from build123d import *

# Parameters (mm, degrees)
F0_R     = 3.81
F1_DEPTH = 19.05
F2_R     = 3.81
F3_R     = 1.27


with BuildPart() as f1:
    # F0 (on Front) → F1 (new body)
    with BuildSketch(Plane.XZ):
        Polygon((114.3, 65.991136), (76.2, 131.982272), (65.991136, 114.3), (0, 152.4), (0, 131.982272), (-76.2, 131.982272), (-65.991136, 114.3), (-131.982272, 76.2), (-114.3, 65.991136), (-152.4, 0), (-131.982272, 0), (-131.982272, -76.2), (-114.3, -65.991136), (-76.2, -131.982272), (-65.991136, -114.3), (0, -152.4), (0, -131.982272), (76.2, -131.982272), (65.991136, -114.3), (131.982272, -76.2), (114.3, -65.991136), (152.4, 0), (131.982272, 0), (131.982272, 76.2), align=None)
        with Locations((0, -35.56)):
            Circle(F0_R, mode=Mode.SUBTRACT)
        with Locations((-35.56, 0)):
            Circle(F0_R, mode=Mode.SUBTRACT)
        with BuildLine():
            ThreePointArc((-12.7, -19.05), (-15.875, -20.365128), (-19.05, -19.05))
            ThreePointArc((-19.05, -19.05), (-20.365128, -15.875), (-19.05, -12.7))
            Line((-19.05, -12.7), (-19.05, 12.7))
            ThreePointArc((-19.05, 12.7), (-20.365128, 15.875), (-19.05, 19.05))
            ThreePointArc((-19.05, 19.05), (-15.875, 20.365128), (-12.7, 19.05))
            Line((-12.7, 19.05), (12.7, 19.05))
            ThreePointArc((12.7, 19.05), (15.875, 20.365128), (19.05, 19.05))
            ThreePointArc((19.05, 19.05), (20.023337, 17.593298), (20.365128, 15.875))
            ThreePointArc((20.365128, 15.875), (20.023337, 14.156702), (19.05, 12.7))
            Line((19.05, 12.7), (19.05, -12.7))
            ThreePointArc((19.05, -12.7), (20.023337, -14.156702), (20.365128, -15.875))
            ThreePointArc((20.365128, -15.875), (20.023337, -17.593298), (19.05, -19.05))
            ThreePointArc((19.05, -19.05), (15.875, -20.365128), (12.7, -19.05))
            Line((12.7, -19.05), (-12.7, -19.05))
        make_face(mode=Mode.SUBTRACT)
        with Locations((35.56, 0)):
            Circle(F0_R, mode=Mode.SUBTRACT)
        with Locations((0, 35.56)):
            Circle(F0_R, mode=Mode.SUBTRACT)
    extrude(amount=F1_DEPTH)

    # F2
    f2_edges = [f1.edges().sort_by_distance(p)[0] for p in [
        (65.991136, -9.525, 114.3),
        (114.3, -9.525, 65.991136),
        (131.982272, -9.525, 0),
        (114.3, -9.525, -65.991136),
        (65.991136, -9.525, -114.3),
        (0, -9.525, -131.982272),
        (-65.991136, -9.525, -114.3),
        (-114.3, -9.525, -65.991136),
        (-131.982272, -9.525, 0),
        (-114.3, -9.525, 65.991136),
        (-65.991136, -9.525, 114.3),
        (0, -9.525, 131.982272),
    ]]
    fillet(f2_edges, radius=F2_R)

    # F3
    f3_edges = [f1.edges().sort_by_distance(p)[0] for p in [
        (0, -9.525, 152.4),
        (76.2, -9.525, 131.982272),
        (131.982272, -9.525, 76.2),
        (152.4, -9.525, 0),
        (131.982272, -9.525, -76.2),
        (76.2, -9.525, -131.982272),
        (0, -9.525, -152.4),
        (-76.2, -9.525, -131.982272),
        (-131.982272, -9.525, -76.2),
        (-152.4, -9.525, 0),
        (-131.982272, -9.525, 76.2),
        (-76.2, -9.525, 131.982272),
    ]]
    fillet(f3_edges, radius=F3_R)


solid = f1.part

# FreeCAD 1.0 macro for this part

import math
import FreeCAD as App
import Part
import Sketcher
from FreeCAD import Vector
Q = App.Units.Quantity


def edges_at(feature, points):
    """Names of the edges that pass closest to the given points."""
    edges = feature.Shape.Edges
    near = lambda p: min(range(len(edges)), key=lambda i: edges[i].distToShape(Part.Vertex(*p))[0])
    return sorted({f"Edge{near(p) + 1}" for p in points})


def add_polygon(sketch, points):
    """Adds a closed chain of lines whose ends are joined by coincident constraints."""
    first, n = sketch.GeometryCount, len(points)
    for a, b in zip(points, points[1:] + points[:1]):
        sketch.addGeometry(Part.LineSegment(App.Vector(*a, 0), App.Vector(*b, 0)), False)
    for i in range(n):
        sketch.addConstraint(Sketcher.Constraint("Coincident", first + i, 2, first + (i + 1) % n, 1))

doc = App.newDocument("Part")
body = doc.addObject("PartDesign::Body", "Body")

# Sketch on XZ plane
sketch1 = doc.addObject("Sketcher::SketchObject", "Sketch")
body.addObject(sketch1)
sketch1.AttachmentSupport = (doc.XZ_Plane, [""])
sketch1.MapMode = "FlatFace"
add_polygon(sketch1, [(114.3, 65.991136), (76.2, 131.982272), (65.991136, 114.3), (0, 152.4), (0, 131.982272), (-76.2, 131.982272), (-65.991136, 114.3), (-131.982272, 76.2), (-114.3, 65.991136), (-152.4, 0), (-131.982272, 0), (-131.982272, -76.2), (-114.3, -65.991136), (-76.2, -131.982272), (-65.991136, -114.3), (0, -152.4), (0, -131.982272), (76.2, -131.982272), (65.991136, -114.3), (131.982272, -76.2), (114.3, -65.991136), (152.4, 0), (131.982272, 0), (131.982272, 76.2)])  # lines 0-23
sketch1.addGeometry(Part.Circle(Vector(0, -35.56, 0), Vector(0, 0, 1), 3.81), False)  # 24
sketch1.addGeometry(Part.Circle(Vector(-35.56, 0, 0), Vector(0, 0, 1), 3.81), False)  # 25
sketch1.addGeometry(Part.LineSegment(Vector(12.7, -19.05, 0), Vector(-12.7, -19.05, 0)), False)  # 26
sketch1.addGeometry(Part.ArcOfCircle(Part.Circle(Vector(-15.875, -15.875, 0), Vector(0, 0, 1), 4.490128), math.radians(-134.999998), math.radians(-45.000002)), False)  # 27
sketch1.addGeometry(Part.ArcOfCircle(Part.Circle(Vector(-15.875, -15.875, 0), Vector(0, 0, 1), 4.490128), math.radians(135.000002), math.radians(224.999998)), False)  # 28
sketch1.addGeometry(Part.LineSegment(Vector(-19.05, -12.7, 0), Vector(-19.05, 12.7, 0)), False)  # 29
sketch1.addGeometry(Part.ArcOfCircle(Part.Circle(Vector(-15.875, 15.875, 0), Vector(0, 0, 1), 4.490128), math.radians(135.000002), math.radians(224.999998)), False)  # 30
sketch1.addGeometry(Part.ArcOfCircle(Part.Circle(Vector(-15.875, 15.875, 0), Vector(0, 0, 1), 4.490128), math.radians(45.000002), math.radians(134.999998)), False)  # 31
sketch1.addGeometry(Part.LineSegment(Vector(-12.7, 19.05, 0), Vector(12.7, 19.05, 0)), False)  # 32
sketch1.addGeometry(Part.ArcOfCircle(Part.Circle(Vector(15.875, 15.875, 0), Vector(0, 0, 1), 4.490128), math.radians(45.000002), math.radians(134.999998)), False)  # 33
sketch1.addGeometry(Part.ArcOfCircle(Part.Circle(Vector(15.874997, 15.874999, 0), Vector(0, 0, 1), 4.490131), math.radians(0.000012), math.radians(44.999986)), False)  # 34
sketch1.addGeometry(Part.ArcOfCircle(Part.Circle(Vector(15.874997, 15.875001, 0), Vector(0, 0, 1), 4.490131), math.radians(-44.999986), math.radians(-0.000012)), False)  # 35
sketch1.addGeometry(Part.LineSegment(Vector(19.05, 12.7, 0), Vector(19.05, -12.7, 0)), False)  # 36
sketch1.addGeometry(Part.ArcOfCircle(Part.Circle(Vector(15.874997, -15.875001, 0), Vector(0, 0, 1), 4.490131), math.radians(0.000012), math.radians(44.999986)), False)  # 37
sketch1.addGeometry(Part.ArcOfCircle(Part.Circle(Vector(15.874997, -15.874999, 0), Vector(0, 0, 1), 4.490131), math.radians(-44.999986), math.radians(-0.000012)), False)  # 38
sketch1.addGeometry(Part.ArcOfCircle(Part.Circle(Vector(15.875, -15.875, 0), Vector(0, 0, 1), 4.490128), math.radians(-134.999998), math.radians(-45.000002)), False)  # 39
sketch1.addGeometry(Part.Circle(Vector(35.56, 0, 0), Vector(0, 0, 1), 3.81), False)  # 40
sketch1.addGeometry(Part.Circle(Vector(0, 35.56, 0), Vector(0, 0, 1), 3.81), False)  # 41
sketch1.addConstraint([
    Sketcher.Constraint("Coincident", 26, 2, 27, 2),
    Sketcher.Constraint("Tangent", 27, 1, 28, 2),
    Sketcher.Constraint("Coincident", 28, 1, 29, 1),
    Sketcher.Constraint("Coincident", 29, 2, 30, 2),
    Sketcher.Constraint("Tangent", 30, 1, 31, 2),
    Sketcher.Constraint("Coincident", 31, 1, 32, 1),
    Sketcher.Constraint("Coincident", 32, 2, 33, 2),
    Sketcher.Constraint("Tangent", 33, 1, 34, 2),
    Sketcher.Constraint("Tangent", 34, 1, 35, 2),
    Sketcher.Constraint("Coincident", 35, 1, 36, 1),
    Sketcher.Constraint("Coincident", 36, 2, 37, 2),
    Sketcher.Constraint("Tangent", 37, 1, 38, 2),
    Sketcher.Constraint("Tangent", 38, 1, 39, 2),
    Sketcher.Constraint("Coincident", 39, 1, 26, 1),
    Sketcher.Constraint("Vertical", 3),
    Sketcher.Constraint("Horizontal", 4),
    Sketcher.Constraint("Horizontal", 9),
    Sketcher.Constraint("Vertical", 10),
    Sketcher.Constraint("Vertical", 15),
    Sketcher.Constraint("Horizontal", 16),
    Sketcher.Constraint("Horizontal", 21),
    Sketcher.Constraint("Vertical", 22),
    Sketcher.Constraint("Horizontal", 26),
    Sketcher.Constraint("Vertical", 29),
    Sketcher.Constraint("Horizontal", 32),
    Sketcher.Constraint("Vertical", 36),
    Sketcher.Constraint("Coincident", 35, 3, 33, 3),
    Sketcher.Constraint("Coincident", 39, 3, 37, 3),
    Sketcher.Constraint("Equal", 24, 25),
    Sketcher.Constraint("Equal", 27, 28),
    Sketcher.Constraint("Equal", 28, 30),
    Sketcher.Constraint("Equal", 30, 31),
    Sketcher.Constraint("Equal", 31, 33),
    Sketcher.Constraint("Equal", 35, 37),
    Sketcher.Constraint("Equal", 25, 40),
    Sketcher.Constraint("Equal", 40, 41),
    Sketcher.Constraint("Symmetric", 27, 3, 33, 3, -1, 1),
    Sketcher.Constraint("Symmetric", 30, 3, 37, 3, -1, 1),
    Sketcher.Constraint("Symmetric", 25, 3, 40, 3, -1, 1),
    Sketcher.Constraint("Symmetric", 24, 3, 41, 3, -1, 1),
    Sketcher.Constraint("Symmetric", 0, 2, 12, 2, -1, 1),
    Sketcher.Constraint("Symmetric", 1, 2, 13, 2, -1, 1),
    Sketcher.Constraint("Symmetric", 2, 2, 14, 2, -1, 1),
    Sketcher.Constraint("Symmetric", 4, 2, 16, 2, -1, 1),
    Sketcher.Constraint("Symmetric", 5, 2, 17, 2, -1, 1),
    Sketcher.Constraint("Symmetric", 6, 2, 18, 2, -1, 1),
    Sketcher.Constraint("Symmetric", 7, 2, 19, 2, -1, 1),
    Sketcher.Constraint("Symmetric", 8, 2, 20, 2, -1, 1),
    Sketcher.Constraint("Symmetric", 10, 2, 22, 2, -1, 1),
    Sketcher.Constraint("Symmetric", 11, 2, 23, 2, -1, 1),
    Sketcher.Constraint("Symmetric", 30, 3, 33, 3, -2),
    Sketcher.Constraint("Symmetric", 0, 2, 4, 2, -2),
    Sketcher.Constraint("Symmetric", 1, 2, 5, 2, -2),
    Sketcher.Constraint("Symmetric", 10, 2, 18, 2, -2),
    Sketcher.Constraint("Symmetric", 11, 2, 19, 2, -2),
    Sketcher.Constraint("PointOnObject", 24, 3, -2),
    Sketcher.Constraint("PointOnObject", 25, 3, -1),
    Sketcher.Constraint("PointOnObject", 2, 2, -2),
    Sketcher.Constraint("PointOnObject", 8, 2, -1),
    Sketcher.Constraint("Perpendicular", 1, 2),
    Sketcher.Constraint("Parallel", 0, 5),
    Sketcher.Constraint("Perpendicular", 5, 6),
    Sketcher.Constraint("Parallel", 2, 7),
    Sketcher.Constraint("Perpendicular", 7, 8),
    Sketcher.Constraint("Horizontal", 26, 2, 27, 1),
    Sketcher.Constraint("Horizontal", 30, 1, 31, 1),
    Sketcher.Constraint("Horizontal", 32, 2, 33, 1),
    Sketcher.Constraint("Horizontal", 35, 3, 34, 1),
    Sketcher.Constraint("Horizontal", 29, 2, 35, 1),
    Sketcher.Constraint("Horizontal", 39, 3, 37, 1),
    Sketcher.Constraint("Horizontal", 27, 1, 38, 1),
    Sketcher.Constraint("Vertical", 27, 1, 28, 1),
    Sketcher.Constraint("Vertical", 29, 2, 30, 1),
    Sketcher.Constraint("Equal", 21, 3),
    Sketcher.Constraint("Equal", 16, 10),
    Sketcher.Constraint("Equal", 32, 29),
    Sketcher.Constraint("Equal", 0, 2),
    Sketcher.Constraint("Diameter", 24, Q("0.3 in")),
    Sketcher.Constraint("DistanceX", 4, 2, 4, 1, Q("3 in")),
    Sketcher.Constraint("DistanceX", 26, 2, 26, 1, Q("1 in")),
    Sketcher.Constraint("Distance", 0, Q("3 in")),
    Sketcher.Constraint("DistanceY", 24, 3, -1, 1, Q("1.4 in")),
    Sketcher.Constraint("DistanceX", 25, 3, -1, 1, Q("1.4 in")),
    Sketcher.Constraint("DistanceY", 26, 2, -1, 1, Q("0.75 in")),
    Sketcher.Constraint("DistanceX", 27, 1, -1, 1, Q("0.75 in")),
])
pad1 = doc.addObject("PartDesign::Pad", "Pad")
body.addObject(pad1)
pad1.Profile = sketch1
pad1.Length = Q("0.75 in")
doc.recompute()

fillet = doc.addObject("PartDesign::Fillet", "Fillet")
body.addObject(fillet)
fillet.Base = (pad1, edges_at(pad1, [
    (65.991, -9.525, 114.3),
    (114.3, -9.525, 65.991),
    (131.982, -9.525, 0),
    (114.3, -9.525, -65.991),
    (65.991, -9.525, -114.3),
    (0, -9.525, -131.982),
    (-65.991, -9.525, -114.3),
    (-114.3, -9.525, -65.991),
    (-131.982, -9.525, 0),
    (-114.3, -9.525, 65.991),
    (-65.991, -9.525, 114.3),
    (0, -9.525, 131.982),
]))
fillet.Radius = Q("0.15 in")
doc.recompute()

fillet2 = doc.addObject("PartDesign::Fillet", "Fillet001")
body.addObject(fillet2)
fillet2.Base = (fillet, edges_at(fillet, [
    (0, -9.525, 152.4),
    (76.2, -9.525, 131.982),
    (131.982, -9.525, 76.2),
    (152.4, -9.525, 0),
    (131.982, -9.525, -76.2),
    (76.2, -9.525, -131.982),
    (0, -9.525, -152.4),
    (-76.2, -9.525, -131.982),
    (-131.982, -9.525, -76.2),
    (-152.4, -9.525, 0),
    (-131.982, -9.525, 76.2),
    (-76.2, -9.525, 131.982),
]))
fillet2.Radius = Q("0.05 in")

doc.recompute()
